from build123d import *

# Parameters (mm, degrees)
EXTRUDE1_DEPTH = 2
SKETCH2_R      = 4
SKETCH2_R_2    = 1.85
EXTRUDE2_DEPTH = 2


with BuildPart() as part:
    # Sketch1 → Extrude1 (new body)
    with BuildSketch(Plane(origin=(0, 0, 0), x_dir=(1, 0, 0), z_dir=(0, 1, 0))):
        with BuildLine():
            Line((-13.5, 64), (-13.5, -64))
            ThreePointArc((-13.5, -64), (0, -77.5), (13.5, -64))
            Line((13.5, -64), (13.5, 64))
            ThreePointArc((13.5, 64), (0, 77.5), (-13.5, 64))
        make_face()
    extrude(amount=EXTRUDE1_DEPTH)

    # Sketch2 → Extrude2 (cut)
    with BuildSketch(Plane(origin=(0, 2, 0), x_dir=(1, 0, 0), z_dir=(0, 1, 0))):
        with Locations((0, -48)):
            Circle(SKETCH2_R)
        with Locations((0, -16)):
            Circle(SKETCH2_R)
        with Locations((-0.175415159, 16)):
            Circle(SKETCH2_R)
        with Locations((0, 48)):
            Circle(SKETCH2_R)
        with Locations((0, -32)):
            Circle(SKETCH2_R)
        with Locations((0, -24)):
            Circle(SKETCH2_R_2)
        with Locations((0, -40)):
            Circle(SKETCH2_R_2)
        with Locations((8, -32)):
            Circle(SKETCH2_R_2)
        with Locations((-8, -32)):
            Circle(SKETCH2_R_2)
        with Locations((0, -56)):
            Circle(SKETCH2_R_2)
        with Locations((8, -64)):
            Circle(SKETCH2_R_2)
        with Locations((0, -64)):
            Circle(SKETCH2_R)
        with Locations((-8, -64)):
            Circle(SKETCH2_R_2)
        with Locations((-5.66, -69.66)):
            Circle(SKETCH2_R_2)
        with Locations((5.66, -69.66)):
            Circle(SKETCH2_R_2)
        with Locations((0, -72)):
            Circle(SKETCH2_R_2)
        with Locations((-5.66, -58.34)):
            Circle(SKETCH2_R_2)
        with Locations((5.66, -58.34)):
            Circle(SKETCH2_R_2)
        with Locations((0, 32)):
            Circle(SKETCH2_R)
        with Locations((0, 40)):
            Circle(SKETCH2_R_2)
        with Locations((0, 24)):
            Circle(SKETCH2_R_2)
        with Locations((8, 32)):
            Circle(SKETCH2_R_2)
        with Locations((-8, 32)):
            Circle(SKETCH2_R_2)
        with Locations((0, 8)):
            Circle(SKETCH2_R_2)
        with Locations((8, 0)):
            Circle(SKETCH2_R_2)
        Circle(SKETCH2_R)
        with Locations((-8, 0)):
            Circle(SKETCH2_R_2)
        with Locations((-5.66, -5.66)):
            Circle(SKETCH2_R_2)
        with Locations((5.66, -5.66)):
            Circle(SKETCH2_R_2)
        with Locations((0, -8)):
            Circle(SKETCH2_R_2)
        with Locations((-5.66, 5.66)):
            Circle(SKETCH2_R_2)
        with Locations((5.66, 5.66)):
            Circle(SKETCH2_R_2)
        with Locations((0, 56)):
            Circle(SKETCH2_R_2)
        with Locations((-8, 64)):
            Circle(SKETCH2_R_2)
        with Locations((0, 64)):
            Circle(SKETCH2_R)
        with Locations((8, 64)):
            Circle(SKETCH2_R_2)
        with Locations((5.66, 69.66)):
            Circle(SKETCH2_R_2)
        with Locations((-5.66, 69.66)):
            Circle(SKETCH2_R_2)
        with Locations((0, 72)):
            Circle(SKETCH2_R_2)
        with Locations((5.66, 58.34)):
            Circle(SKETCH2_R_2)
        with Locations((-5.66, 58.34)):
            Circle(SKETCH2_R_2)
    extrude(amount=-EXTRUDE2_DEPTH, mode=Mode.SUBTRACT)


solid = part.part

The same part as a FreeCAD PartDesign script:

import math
import FreeCAD as App
import Part
import Sketcher
Q = App.Units.Quantity

doc = App.newDocument("Part")
body = doc.addObject("PartDesign::Body", "Body")

# Sketch on XZ plane
sketch1 = body.newObject("Sketcher::SketchObject", "Sketch")
sketch1.AttachmentSupport = (doc.getObject("XZ_Plane"), [""])
sketch1.MapMode = "FlatFace"
sketch1.addGeometry([
    Part.LineSegment(App.Vector(-13.5, -64, 0), App.Vector(-13.5, 64, 0)),
    Part.ArcOfCircle(Part.Circle(App.Vector(0, 64, 0), App.Vector(0, 0, 1), 13.5), math.radians(0), math.radians(180)),
    Part.LineSegment(App.Vector(13.5, 64, 0), App.Vector(13.5, -64, 0)),
    Part.ArcOfCircle(Part.Circle(App.Vector(0, -64, 0), App.Vector(0, 0, 1), 13.5), math.radians(180), math.radians(360)),
], False)
sketch1.addConstraint([
    Sketcher.Constraint("Tangent", 0, 2, 1, 2),
    Sketcher.Constraint("Tangent", 1, 1, 2, 1),
    Sketcher.Constraint("Tangent", 2, 2, 3, 2),
    Sketcher.Constraint("Tangent", 3, 1, 0, 1),
    Sketcher.Constraint("Vertical", 0),
    Sketcher.Constraint("Vertical", 2),
    Sketcher.Constraint("Symmetric", 1, 3, 3, 3, -1, 1),
    Sketcher.Constraint("Radius", 1, Q("13.5 mm")),
    Sketcher.Constraint("DistanceY", 0, 1, 0, 2, Q("128 mm")),
])
pad1 = body.newObject("PartDesign::Pad", "Pad")
pad1.Profile = sketch1
pad1.Length = 2
pad1.Reversed = True

# Sketch on XZ plane
sketch2 = body.newObject("Sketcher::SketchObject", "Sketch001")
sketch2.AttachmentSupport = (doc.getObject("XZ_Plane"), [""])
sketch2.MapMode = "FlatFace"
sketch2.AttachmentOffset = App.Placement(App.Vector(0, 0, -2), App.Rotation())
sketch2.addGeometry([
    Part.Circle(App.Vector(0, 48, 0), App.Vector(0, 0, 1), 4),  # 0
    Part.Circle(App.Vector(0, 16, 0), App.Vector(0, 0, 1), 4),  # 1
    Part.Circle(App.Vector(-0.175415, -16, 0), App.Vector(0, 0, 1), 4),  # 2
    Part.Circle(App.Vector(0, -48, 0), App.Vector(0, 0, 1), 4),  # 3
    Part.Circle(App.Vector(0, 32, 0), App.Vector(0, 0, 1), 4),  # 4
    Part.Circle(App.Vector(0, 24, 0), App.Vector(0, 0, 1), 1.85),  # 5
    Part.Circle(App.Vector(0, 40, 0), App.Vector(0, 0, 1), 1.85),  # 6
    Part.Circle(App.Vector(8, 32, 0), App.Vector(0, 0, 1), 1.85),  # 7
    Part.Circle(App.Vector(-8, 32, 0), App.Vector(0, 0, 1), 1.85),  # 8
    Part.Circle(App.Vector(0, 56, 0), App.Vector(0, 0, 1), 1.85),  # 9
    Part.Circle(App.Vector(8, 64, 0), App.Vector(0, 0, 1), 1.85),  # 10
    Part.Circle(App.Vector(0, 64, 0), App.Vector(0, 0, 1), 4),  # 11
    Part.Circle(App.Vector(-8, 64, 0), App.Vector(0, 0, 1), 1.85),  # 12
    Part.Circle(App.Vector(-5.66, 69.66, 0), App.Vector(0, 0, 1), 1.85),  # 13
    Part.Circle(App.Vector(5.66, 69.66, 0), App.Vector(0, 0, 1), 1.85),  # 14
    Part.Circle(App.Vector(0, 72, 0), App.Vector(0, 0, 1), 1.85),  # 15
    Part.Circle(App.Vector(-5.66, 58.34, 0), App.Vector(0, 0, 1), 1.85),  # 16
    Part.Circle(App.Vector(5.66, 58.34, 0), App.Vector(0, 0, 1), 1.85),  # 17
    Part.Circle(App.Vector(0, -32, 0), App.Vector(0, 0, 1), 4),  # 18
    Part.Circle(App.Vector(0, -40, 0), App.Vector(0, 0, 1), 1.85),  # 19
    Part.Circle(App.Vector(0, -24, 0), App.Vector(0, 0, 1), 1.85),  # 20
    Part.Circle(App.Vector(8, -32, 0), App.Vector(0, 0, 1), 1.85),  # 21
    Part.Circle(App.Vector(-8, -32, 0), App.Vector(0, 0, 1), 1.85),  # 22
    Part.Circle(App.Vector(0, -8, 0), App.Vector(0, 0, 1), 1.85),  # 23
    Part.Circle(App.Vector(8, 0, 0), App.Vector(0, 0, 1), 1.85),  # 24
    Part.Circle(App.Vector(0, 0, 0), App.Vector(0, 0, 1), 4),  # 25
    Part.Circle(App.Vector(-8, 0, 0), App.Vector(0, 0, 1), 1.85),  # 26
    Part.Circle(App.Vector(-5.66, 5.66, 0), App.Vector(0, 0, 1), 1.85),  # 27
    Part.Circle(App.Vector(5.66, 5.66, 0), App.Vector(0, 0, 1), 1.85),  # 28
    Part.Circle(App.Vector(0, 8, 0), App.Vector(0, 0, 1), 1.85),  # 29
    Part.Circle(App.Vector(-5.66, -5.66, 0), App.Vector(0, 0, 1), 1.85),  # 30
    Part.Circle(App.Vector(5.66, -5.66, 0), App.Vector(0, 0, 1), 1.85),  # 31
    Part.Circle(App.Vector(0, -56, 0), App.Vector(0, 0, 1), 1.85),  # 32
    Part.Circle(App.Vector(-8, -64, 0), App.Vector(0, 0, 1), 1.85),  # 33
    Part.Circle(App.Vector(0, -64, 0), App.Vector(0, 0, 1), 4),  # 34
    Part.Circle(App.Vector(8, -64, 0), App.Vector(0, 0, 1), 1.85),  # 35
    Part.Circle(App.Vector(5.66, -69.66, 0), App.Vector(0, 0, 1), 1.85),  # 36
    Part.Circle(App.Vector(-5.66, -69.66, 0), App.Vector(0, 0, 1), 1.85),  # 37
    Part.Circle(App.Vector(0, -72, 0), App.Vector(0, 0, 1), 1.85),  # 38
    Part.Circle(App.Vector(5.66, -58.34, 0), App.Vector(0, 0, 1), 1.85),  # 39
    Part.Circle(App.Vector(-5.66, -58.34, 0), App.Vector(0, 0, 1), 1.85),  # 40
], False)
sketch2.addConstraint([
    Sketcher.Constraint("Coincident", 25, 3, -1, 1),
    Sketcher.Constraint("Equal", 0, 1),
    Sketcher.Constraint("Equal", 1, 2),
    Sketcher.Constraint("Equal", 2, 3),
    Sketcher.Constraint("Equal", 3, 4),
    Sketcher.Constraint("Equal", 5, 6),
    Sketcher.Constraint("Equal", 6, 7),
    Sketcher.Constraint("Equal", 7, 8),
    Sketcher.Constraint("Equal", 8, 9),
    Sketcher.Constraint("Equal", 9, 10),
    Sketcher.Constraint("Equal", 4, 11),
    Sketcher.Constraint("Equal", 10, 12),
    Sketcher.Constraint("Equal", 12, 13),
    Sketcher.Constraint("Equal", 13, 14),
    Sketcher.Constraint("Equal", 14, 15),
    Sketcher.Constraint("Equal", 15, 16),
    Sketcher.Constraint("Equal", 16, 17),
    Sketcher.Constraint("Equal", 11, 18),
    Sketcher.Constraint("Equal", 17, 19),
    Sketcher.Constraint("Equal", 19, 20),
    Sketcher.Constraint("Equal", 20, 21),
    Sketcher.Constraint("Equal", 21, 22),
    Sketcher.Constraint("Equal", 22, 23),
    Sketcher.Constraint("Equal", 23, 24),
    Sketcher.Constraint("Equal", 18, 25),
    Sketcher.Constraint("Equal", 24, 26),
    Sketcher.Constraint("Equal", 26, 27),
    Sketcher.Constraint("Equal", 27, 28),
    Sketcher.Constraint("Equal", 28, 29),
    Sketcher.Constraint("Equal", 29, 30),
    Sketcher.Constraint("Equal", 30, 31),
    Sketcher.Constraint("Equal", 31, 32),
    Sketcher.Constraint("Equal", 32, 33),
    Sketcher.Constraint("Equal", 25, 34),
    Sketcher.Constraint("Equal", 33, 35),
    Sketcher.Constraint("Equal", 35, 36),
    Sketcher.Constraint("Equal", 36, 37),
    Sketcher.Constraint("Equal", 37, 38),
    Sketcher.Constraint("Equal", 38, 39),
    Sketcher.Constraint("Equal", 39, 40),
    Sketcher.Constraint("Symmetric", 0, 3, 3, 3, -1, 1),
    Sketcher.Constraint("Symmetric", 4, 3, 18, 3, -1, 1),
    Sketcher.Constraint("Symmetric", 6, 3, 19, 3, -1, 1),
    Sketcher.Constraint("Symmetric", 5, 3, 20, 3, -1, 1),
    Sketcher.Constraint("Symmetric", 8, 3, 21, 3, -1, 1),
    Sketcher.Constraint("Symmetric", 7, 3, 22, 3, -1, 1),
    Sketcher.Constraint("Symmetric", 24, 3, 26, 3, -1, 1),
    Sketcher.Constraint("Symmetric", 23, 3, 29, 3, -1, 1),
    Sketcher.Constraint("Symmetric", 28, 3, 30, 3, -1, 1),
    Sketcher.Constraint("Symmetric", 27, 3, 31, 3, -1, 1),
    Sketcher.Constraint("Symmetric", 9, 3, 32, 3, -1, 1),
    Sketcher.Constraint("Symmetric", 10, 3, 33, 3, -1, 1),
    Sketcher.Constraint("Symmetric", 11, 3, 34, 3, -1, 1),
    Sketcher.Constraint("Symmetric", 12, 3, 35, 3, -1, 1),
    Sketcher.Constraint("Symmetric", 13, 3, 36, 3, -1, 1),
    Sketcher.Constraint("Symmetric", 14, 3, 37, 3, -1, 1),
    Sketcher.Constraint("Symmetric", 15, 3, 38, 3, -1, 1),
    Sketcher.Constraint("Symmetric", 16, 3, 39, 3, -1, 1),
    Sketcher.Constraint("Symmetric", 17, 3, 40, 3, -1, 1),
    Sketcher.Constraint("Symmetric", 7, 3, 8, 3, -2),
    Sketcher.Constraint("Symmetric", 10, 3, 12, 3, -2),
    Sketcher.Constraint("Symmetric", 13, 3, 14, 3, -2),
    Sketcher.Constraint("Symmetric", 16, 3, 17, 3, -2),
    Sketcher.Constraint("Symmetric", 27, 3, 28, 3, -2),
    Sketcher.Constraint("PointOnObject", 0, 3, -2),
    Sketcher.Constraint("PointOnObject", 1, 3, -2),
    Sketcher.Constraint("PointOnObject", 4, 3, -2),
    Sketcher.Constraint("PointOnObject", 5, 3, -2),
    Sketcher.Constraint("PointOnObject", 6, 3, -2),
    Sketcher.Constraint("PointOnObject", 9, 3, -2),
    Sketcher.Constraint("PointOnObject", 11, 3, -2),
    Sketcher.Constraint("PointOnObject", 15, 3, -2),
    Sketcher.Constraint("PointOnObject", 23, 3, -2),
    Sketcher.Constraint("PointOnObject", 24, 3, -1),
    Sketcher.Constraint("Horizontal", 4, 3, 7, 3),
    Sketcher.Constraint("Horizontal", 10, 3, 11, 3),
    Sketcher.Constraint("Vertical", 7, 3, 10, 3),
    Sketcher.Constraint("Vertical", 13, 3, 16, 3),
    Sketcher.Constraint("Vertical", 21, 3, 24, 3),
    Sketcher.Constraint("Vertical", 16, 3, 27, 3),
    Sketcher.Constraint("Diameter", 0, Q("8 mm")),
    Sketcher.Constraint("Diameter", 5, Q("3.7 mm")),
    Sketcher.Constraint("DistanceY", -1, 1, 0, 3, Q("48 mm")),
    Sketcher.Constraint("DistanceY", -1, 1, 1, 3, Q("16 mm")),
    Sketcher.Constraint("DistanceY", 2, 3, -1, 1, Q("16 mm")),
    Sketcher.Constraint("DistanceY", -1, 1, 4, 3, Q("32 mm")),
    Sketcher.Constraint("DistanceY", -1, 1, 5, 3, Q("24 mm")),
    Sketcher.Constraint("DistanceY", -1, 1, 6, 3, Q("40 mm")),
    Sketcher.Constraint("DistanceX", -1, 1, 7, 3, Q("8 mm")),
    Sketcher.Constraint("DistanceY", -1, 1, 9, 3, Q("56 mm")),
    Sketcher.Constraint("DistanceY", -1, 1, 10, 3, Q("64 mm")),
    Sketcher.Constraint("DistanceY", -1, 1, 15, 3, Q("72 mm")),
    Sketcher.Constraint("DistanceY", 23, 3, -1, 1, Q("8 mm")),
    Sketcher.Constraint("DistanceX", 13, 3, -1, 1, Q("5.66 mm")),
    Sketcher.Constraint("DistanceY", -1, 1, 13, 3, Q("69.66 mm")),
    Sketcher.Constraint("DistanceY", -1, 1, 16, 3, Q("58.34 mm")),
    Sketcher.Constraint("DistanceY", -1, 1, 27, 3, Q("5.66 mm")),
    Sketcher.Constraint("DistanceX", 2, 3, -1, 1, Q("0.175415 mm")),
])
pocket1 = body.newObject("PartDesign::Pocket", "Pocket")
pocket1.Profile = sketch2
pocket1.Length = 2
pocket1.Reversed = True

doc.recompute()
